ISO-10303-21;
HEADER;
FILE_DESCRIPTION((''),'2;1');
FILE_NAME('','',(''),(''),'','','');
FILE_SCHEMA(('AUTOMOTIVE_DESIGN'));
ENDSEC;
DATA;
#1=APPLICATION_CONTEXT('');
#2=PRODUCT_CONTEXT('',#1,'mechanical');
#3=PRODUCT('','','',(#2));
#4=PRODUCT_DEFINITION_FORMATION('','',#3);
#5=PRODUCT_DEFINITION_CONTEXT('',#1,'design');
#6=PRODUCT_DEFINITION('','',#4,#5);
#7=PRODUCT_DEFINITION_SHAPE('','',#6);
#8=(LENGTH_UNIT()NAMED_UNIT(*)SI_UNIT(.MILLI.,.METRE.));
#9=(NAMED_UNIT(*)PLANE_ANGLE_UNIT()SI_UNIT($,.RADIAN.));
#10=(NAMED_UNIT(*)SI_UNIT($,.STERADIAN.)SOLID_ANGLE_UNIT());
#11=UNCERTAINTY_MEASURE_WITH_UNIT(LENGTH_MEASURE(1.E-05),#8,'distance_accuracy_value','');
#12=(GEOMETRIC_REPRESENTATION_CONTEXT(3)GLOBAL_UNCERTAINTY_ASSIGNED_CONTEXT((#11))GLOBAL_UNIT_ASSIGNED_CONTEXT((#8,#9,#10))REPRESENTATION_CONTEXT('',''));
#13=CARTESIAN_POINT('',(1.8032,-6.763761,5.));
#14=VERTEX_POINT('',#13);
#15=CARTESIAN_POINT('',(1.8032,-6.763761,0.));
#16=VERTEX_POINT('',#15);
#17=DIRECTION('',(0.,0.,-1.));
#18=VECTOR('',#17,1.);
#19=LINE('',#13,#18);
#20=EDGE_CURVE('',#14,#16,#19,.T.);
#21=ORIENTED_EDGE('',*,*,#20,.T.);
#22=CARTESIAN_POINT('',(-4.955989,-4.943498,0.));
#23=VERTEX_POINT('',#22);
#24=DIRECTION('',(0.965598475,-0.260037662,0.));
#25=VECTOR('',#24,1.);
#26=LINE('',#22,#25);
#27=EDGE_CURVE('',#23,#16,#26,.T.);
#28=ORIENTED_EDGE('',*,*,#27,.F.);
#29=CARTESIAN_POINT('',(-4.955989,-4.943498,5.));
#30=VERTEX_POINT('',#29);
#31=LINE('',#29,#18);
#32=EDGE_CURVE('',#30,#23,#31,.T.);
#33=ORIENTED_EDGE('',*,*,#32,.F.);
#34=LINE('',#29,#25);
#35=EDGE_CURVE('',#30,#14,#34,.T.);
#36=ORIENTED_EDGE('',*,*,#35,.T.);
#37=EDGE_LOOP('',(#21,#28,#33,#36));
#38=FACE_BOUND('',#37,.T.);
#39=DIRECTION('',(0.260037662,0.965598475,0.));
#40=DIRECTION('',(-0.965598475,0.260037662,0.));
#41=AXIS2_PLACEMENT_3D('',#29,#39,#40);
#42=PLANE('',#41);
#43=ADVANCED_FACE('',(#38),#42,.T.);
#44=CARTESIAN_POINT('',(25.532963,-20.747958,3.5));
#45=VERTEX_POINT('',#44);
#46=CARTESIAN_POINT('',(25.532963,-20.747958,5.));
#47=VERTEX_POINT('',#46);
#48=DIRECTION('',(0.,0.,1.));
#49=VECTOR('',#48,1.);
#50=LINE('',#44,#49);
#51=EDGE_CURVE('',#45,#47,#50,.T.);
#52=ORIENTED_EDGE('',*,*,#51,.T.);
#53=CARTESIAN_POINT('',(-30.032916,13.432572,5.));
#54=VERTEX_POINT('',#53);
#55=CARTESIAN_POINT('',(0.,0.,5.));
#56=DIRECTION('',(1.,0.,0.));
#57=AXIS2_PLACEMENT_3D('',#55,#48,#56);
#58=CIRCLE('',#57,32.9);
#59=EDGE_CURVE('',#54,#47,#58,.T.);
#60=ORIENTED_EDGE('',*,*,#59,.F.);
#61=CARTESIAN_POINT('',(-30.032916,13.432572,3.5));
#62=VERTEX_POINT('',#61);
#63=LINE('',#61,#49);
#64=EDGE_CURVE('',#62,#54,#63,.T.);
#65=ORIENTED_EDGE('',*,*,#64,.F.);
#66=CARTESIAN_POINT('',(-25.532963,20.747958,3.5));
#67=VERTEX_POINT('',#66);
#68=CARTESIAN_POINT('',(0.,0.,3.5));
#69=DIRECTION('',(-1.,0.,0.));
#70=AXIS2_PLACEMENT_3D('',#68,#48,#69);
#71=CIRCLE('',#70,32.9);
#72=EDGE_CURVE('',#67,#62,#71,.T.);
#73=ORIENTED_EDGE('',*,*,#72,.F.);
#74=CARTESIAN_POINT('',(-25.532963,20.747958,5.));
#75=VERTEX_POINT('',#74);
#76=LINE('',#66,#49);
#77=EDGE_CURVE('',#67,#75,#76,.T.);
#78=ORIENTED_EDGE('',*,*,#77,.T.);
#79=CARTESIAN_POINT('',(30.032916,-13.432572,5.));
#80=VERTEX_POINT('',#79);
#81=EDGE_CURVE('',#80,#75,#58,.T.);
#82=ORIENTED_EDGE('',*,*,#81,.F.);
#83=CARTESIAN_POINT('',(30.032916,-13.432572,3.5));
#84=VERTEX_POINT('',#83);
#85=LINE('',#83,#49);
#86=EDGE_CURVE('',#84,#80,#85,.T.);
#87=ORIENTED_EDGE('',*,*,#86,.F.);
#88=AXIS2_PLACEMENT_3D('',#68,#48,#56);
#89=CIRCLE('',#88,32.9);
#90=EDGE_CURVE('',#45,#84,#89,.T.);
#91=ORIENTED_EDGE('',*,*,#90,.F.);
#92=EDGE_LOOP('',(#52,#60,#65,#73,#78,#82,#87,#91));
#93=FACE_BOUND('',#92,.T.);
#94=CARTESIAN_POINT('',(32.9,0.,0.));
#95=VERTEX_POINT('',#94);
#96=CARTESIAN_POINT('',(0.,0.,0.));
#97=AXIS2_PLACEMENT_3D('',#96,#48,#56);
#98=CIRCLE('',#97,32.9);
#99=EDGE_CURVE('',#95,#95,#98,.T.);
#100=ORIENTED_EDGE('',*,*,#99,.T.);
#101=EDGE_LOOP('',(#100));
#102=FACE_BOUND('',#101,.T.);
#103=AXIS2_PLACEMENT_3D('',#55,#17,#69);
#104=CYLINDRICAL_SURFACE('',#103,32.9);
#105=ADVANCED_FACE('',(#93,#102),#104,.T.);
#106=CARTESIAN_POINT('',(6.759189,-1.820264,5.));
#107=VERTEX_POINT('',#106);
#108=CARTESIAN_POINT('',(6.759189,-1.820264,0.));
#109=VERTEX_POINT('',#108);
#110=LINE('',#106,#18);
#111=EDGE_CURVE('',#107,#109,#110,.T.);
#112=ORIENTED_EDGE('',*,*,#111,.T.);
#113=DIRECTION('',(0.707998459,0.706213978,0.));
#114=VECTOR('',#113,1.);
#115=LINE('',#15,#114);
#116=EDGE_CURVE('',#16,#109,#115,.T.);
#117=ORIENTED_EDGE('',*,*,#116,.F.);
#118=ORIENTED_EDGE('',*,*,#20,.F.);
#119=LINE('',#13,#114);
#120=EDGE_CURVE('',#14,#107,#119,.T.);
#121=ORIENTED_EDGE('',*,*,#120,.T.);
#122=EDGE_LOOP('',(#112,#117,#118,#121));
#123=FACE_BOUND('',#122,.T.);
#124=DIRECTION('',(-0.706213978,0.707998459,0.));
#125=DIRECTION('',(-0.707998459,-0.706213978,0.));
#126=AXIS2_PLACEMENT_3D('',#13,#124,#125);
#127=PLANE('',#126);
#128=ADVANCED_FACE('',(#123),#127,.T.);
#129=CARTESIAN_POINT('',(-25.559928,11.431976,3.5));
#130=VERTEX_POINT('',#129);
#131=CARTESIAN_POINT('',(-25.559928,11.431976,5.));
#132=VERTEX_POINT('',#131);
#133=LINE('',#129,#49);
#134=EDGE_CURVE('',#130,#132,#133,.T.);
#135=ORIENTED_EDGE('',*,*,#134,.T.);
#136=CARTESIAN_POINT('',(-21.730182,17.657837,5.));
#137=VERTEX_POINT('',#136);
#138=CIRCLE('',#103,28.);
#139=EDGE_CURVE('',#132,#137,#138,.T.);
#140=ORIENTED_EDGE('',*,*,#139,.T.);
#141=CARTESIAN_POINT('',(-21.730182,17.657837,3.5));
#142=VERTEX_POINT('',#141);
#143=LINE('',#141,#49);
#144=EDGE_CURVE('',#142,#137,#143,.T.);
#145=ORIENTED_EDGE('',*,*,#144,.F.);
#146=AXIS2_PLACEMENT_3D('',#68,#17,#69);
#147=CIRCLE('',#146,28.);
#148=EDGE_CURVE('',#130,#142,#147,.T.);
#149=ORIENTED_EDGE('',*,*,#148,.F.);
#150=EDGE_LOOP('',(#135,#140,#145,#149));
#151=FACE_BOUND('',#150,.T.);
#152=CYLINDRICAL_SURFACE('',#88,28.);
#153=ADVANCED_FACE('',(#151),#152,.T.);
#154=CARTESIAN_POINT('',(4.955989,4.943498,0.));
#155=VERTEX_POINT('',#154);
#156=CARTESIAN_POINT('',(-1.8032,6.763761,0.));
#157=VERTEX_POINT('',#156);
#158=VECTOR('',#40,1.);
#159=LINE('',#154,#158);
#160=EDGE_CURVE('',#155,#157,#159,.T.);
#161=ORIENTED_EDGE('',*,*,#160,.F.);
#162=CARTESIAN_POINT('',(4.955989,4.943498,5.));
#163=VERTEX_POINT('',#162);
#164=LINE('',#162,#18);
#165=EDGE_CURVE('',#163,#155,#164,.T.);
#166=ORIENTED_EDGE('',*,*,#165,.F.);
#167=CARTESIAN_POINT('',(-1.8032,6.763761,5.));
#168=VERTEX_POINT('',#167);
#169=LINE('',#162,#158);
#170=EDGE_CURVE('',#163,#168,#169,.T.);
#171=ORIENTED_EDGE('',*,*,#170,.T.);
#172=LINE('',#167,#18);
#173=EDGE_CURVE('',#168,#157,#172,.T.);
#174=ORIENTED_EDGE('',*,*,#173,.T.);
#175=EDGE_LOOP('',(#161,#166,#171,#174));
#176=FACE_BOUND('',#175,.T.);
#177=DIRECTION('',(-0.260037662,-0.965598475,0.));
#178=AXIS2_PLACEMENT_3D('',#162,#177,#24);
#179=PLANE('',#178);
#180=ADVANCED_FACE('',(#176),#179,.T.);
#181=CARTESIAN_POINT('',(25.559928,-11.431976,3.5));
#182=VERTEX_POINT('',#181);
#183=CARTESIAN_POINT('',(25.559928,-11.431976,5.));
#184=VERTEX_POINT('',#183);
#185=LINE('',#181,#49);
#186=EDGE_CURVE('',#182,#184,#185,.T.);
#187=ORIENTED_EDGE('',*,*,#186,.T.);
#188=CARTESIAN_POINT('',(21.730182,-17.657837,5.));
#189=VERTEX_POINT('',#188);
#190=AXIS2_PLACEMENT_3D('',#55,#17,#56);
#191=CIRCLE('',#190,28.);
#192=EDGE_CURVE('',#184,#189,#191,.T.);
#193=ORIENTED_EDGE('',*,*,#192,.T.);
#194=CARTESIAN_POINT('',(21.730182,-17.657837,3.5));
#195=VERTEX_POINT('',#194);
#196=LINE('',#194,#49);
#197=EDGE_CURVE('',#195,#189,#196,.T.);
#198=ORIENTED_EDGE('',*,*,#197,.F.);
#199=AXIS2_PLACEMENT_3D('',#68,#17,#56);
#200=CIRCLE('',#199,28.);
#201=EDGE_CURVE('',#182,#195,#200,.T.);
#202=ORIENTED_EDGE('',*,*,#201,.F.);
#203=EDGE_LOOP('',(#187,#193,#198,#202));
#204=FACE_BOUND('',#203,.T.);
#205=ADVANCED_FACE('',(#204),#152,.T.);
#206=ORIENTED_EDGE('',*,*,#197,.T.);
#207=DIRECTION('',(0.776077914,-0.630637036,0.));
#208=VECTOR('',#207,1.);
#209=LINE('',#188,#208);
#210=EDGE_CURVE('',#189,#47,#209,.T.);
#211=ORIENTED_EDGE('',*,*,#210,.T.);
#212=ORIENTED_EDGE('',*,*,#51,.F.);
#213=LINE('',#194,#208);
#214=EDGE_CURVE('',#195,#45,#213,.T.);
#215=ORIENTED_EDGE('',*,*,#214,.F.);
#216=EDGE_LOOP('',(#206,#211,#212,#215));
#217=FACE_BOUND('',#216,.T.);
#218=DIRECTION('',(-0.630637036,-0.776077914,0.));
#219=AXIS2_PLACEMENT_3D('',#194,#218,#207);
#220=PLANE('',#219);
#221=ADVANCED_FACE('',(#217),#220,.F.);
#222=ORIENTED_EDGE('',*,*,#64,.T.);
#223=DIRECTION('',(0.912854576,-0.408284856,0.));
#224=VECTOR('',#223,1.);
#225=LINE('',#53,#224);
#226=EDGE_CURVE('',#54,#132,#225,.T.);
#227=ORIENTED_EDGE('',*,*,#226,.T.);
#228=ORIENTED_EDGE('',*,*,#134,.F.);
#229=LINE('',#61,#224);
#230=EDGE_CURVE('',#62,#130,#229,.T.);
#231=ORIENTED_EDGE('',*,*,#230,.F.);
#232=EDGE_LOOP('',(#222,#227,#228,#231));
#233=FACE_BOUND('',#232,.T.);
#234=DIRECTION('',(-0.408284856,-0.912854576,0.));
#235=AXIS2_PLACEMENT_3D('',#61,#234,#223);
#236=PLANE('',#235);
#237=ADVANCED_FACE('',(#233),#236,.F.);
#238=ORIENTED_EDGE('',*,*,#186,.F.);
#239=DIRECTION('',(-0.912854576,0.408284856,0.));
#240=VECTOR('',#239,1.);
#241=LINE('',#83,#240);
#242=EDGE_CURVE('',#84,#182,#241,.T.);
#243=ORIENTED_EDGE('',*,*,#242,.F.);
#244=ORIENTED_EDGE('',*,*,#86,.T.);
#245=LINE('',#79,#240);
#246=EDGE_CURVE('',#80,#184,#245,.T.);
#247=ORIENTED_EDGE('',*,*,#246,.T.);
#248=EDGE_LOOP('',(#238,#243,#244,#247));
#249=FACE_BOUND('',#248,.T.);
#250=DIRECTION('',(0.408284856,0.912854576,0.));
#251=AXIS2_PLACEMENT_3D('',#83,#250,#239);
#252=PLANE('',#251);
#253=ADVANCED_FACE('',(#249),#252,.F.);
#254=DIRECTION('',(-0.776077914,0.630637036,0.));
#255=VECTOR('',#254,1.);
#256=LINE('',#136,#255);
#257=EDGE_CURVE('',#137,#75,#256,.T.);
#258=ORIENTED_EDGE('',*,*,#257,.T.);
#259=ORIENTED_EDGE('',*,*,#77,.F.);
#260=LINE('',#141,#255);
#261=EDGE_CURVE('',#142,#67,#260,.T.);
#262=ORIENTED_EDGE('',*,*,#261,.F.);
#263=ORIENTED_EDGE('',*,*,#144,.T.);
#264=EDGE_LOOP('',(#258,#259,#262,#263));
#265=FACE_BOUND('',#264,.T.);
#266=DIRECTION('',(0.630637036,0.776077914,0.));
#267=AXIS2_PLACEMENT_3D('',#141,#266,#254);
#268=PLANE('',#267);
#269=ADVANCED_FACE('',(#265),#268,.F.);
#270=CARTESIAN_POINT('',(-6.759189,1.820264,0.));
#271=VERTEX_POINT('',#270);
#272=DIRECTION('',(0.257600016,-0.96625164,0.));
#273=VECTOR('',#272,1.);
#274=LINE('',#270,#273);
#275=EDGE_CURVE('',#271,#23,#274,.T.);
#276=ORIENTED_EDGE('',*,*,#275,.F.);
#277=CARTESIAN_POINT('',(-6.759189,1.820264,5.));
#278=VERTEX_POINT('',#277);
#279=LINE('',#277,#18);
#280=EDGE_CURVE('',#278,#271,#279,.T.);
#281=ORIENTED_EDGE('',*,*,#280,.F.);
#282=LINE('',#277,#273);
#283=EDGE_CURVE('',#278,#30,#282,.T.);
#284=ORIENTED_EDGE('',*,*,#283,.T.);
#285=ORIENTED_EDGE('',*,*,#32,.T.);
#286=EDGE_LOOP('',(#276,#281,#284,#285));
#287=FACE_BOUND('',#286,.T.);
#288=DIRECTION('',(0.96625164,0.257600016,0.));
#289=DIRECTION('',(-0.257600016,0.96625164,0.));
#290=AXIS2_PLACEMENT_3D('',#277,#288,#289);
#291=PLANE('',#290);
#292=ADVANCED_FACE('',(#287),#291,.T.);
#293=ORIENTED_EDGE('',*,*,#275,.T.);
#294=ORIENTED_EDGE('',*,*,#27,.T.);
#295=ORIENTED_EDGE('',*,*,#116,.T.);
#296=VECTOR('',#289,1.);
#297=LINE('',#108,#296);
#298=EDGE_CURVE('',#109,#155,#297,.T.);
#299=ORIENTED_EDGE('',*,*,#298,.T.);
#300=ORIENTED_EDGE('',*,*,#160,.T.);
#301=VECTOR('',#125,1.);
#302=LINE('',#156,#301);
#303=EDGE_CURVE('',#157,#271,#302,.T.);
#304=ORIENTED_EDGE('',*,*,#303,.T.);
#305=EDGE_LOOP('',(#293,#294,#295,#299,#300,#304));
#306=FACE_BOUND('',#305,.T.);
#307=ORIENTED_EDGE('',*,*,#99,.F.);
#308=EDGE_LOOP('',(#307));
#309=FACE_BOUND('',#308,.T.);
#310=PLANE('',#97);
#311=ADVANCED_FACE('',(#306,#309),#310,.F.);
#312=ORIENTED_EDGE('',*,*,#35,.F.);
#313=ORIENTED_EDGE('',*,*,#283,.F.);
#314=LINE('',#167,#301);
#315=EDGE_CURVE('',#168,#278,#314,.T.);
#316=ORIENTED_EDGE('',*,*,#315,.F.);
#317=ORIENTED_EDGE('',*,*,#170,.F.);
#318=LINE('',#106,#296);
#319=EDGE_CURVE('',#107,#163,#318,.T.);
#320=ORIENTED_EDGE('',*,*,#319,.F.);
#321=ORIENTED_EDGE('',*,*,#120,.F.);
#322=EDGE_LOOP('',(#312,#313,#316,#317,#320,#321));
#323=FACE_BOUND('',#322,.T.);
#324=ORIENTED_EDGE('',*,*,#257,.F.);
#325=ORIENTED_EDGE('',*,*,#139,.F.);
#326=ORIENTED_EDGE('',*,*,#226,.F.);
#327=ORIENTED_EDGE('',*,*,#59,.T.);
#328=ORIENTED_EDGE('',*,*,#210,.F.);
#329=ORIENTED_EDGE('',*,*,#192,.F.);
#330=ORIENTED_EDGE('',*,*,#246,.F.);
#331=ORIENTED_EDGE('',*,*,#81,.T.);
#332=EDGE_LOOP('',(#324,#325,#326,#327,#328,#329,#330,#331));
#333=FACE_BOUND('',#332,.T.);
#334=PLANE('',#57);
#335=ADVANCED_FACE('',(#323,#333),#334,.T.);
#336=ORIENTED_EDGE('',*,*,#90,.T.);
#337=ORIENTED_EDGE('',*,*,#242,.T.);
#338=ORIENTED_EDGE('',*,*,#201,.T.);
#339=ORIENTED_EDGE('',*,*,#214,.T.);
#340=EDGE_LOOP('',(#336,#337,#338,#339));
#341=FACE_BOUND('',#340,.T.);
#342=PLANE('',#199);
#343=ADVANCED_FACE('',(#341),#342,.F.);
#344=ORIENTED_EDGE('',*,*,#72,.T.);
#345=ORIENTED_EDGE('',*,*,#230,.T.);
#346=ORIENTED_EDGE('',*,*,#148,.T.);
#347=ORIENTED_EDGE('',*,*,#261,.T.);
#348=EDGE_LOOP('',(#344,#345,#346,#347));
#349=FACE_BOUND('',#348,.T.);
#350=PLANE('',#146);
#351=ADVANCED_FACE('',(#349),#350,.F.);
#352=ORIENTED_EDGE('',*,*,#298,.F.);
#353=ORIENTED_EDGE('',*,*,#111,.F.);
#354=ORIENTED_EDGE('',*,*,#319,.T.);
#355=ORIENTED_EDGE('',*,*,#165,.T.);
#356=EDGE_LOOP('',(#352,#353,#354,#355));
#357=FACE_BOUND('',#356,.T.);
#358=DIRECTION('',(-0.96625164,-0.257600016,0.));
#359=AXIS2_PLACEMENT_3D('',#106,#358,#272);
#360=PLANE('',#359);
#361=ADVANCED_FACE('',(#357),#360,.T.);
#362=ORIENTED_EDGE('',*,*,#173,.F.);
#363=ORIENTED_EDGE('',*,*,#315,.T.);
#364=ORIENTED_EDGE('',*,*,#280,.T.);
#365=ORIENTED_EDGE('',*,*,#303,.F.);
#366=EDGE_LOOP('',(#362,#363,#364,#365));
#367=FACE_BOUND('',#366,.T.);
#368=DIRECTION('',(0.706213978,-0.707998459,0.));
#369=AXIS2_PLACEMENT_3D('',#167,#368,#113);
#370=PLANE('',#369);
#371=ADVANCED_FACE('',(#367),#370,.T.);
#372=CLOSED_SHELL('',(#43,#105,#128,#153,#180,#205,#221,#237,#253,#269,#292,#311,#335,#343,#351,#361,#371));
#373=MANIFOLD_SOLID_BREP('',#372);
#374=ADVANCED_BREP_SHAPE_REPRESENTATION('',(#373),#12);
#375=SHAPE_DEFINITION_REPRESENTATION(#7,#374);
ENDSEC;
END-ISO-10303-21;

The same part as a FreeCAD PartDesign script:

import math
import FreeCAD as App
import Part
import Sketcher


def add_polygon(sketch, points):
    """Adds a closed chain of lines whose ends are joined by coincident constraints."""
    first, n = sketch.GeometryCount, len(points)
    for a, b in zip(points, points[1:] + points[:1]):
        sketch.addGeometry(Part.LineSegment(App.Vector(*a, 0), App.Vector(*b, 0)), False)
    for i in range(n):
        sketch.addConstraint(Sketcher.Constraint("Coincident", first + i, 2, first + (i + 1) % n, 1))

doc = App.newDocument("Part")
params = doc.addObject("Spreadsheet::Sheet", "Params")
for row, (alias, value) in enumerate([
    ("sketch1_diameter", "65.8 mm"),
    ("sketch1_length", "7 mm"),
    ("pad1_length", "5 mm"),
    ("sketch2_radius", "28 mm"),
    ("sketch2_radius2", "32.9 mm"),
    ("pocket1_length", "1.5 mm"),
], start=1):
    params.set(f"A{row}", alias)
    params.set(f"B{row}", "=" + value)
    params.setAlias(f"B{row}", alias)

body = doc.addObject("PartDesign::Body", "Body")

# Sketch on XY plane
sketch1 = body.newObject("Sketcher::SketchObject", "Sketch")
sketch1.AttachmentSupport = (doc.getObject("XY_Plane"), [""])
sketch1.MapMode = "FlatFace"
sketch1.addGeometry(Part.Circle(App.Vector(0, 0, 0), App.Vector(0, 0, 1), 33), False)  # 0
add_polygon(sketch1, [(5, 5), (7, -2), (2, -7), (-5, -5), (-7, 2), (-2, 7)])  # lines 1-6
sketch1.addConstraint([
    Sketcher.Constraint("Coincident", 0, 3, -1, 1),
    Sketcher.Constraint("Symmetric", 1, 2, 4, 2, -1, 1),
    Sketcher.Constraint("Symmetric", 2, 2, 5, 2, -1, 1),
    Sketcher.Constraint("Symmetric", 3, 2, 6, 2, -1, 1),
    Sketcher.Constraint("Equal", 1, 2),
    Sketcher.Constraint("Equal", 2, 3),
    Sketcher.Constraint("Diameter", 0, 65.8),
    Sketcher.Constraint("Distance", 1, 7.0),
    Sketcher.Constraint("DistanceX", -1, 1, 2, 2, 1.8032),
    Sketcher.Constraint("DistanceX", 4, 2, 3, 2, 1.8032),
    Sketcher.Constraint("DistanceX", -1, 1, 1, 2, 6.759189),
])
sketch1.setExpression("Constraints[12]", "Params.sketch1_diameter")
sketch1.setExpression("Constraints[13]", "Params.sketch1_length")
pad1 = body.newObject("PartDesign::Pad", "Pad")
pad1.Profile = sketch1
pad1.setExpression("Length", "Params.pad1_length")

# Sketch on XY plane
sketch2 = body.newObject("Sketcher::SketchObject", "Sketch001")
sketch2.AttachmentSupport = (doc.getObject("XY_Plane"), [""])
sketch2.MapMode = "FlatFace"
sketch2.AttachmentOffset = App.Placement(App.Vector(0, 0, 3.5), App.Rotation())
sketch2.addGeometry([
    Part.LineSegment(App.Vector(-30, 13.4, 0), App.Vector(-25.6, 11.4, 0)),
    Part.ArcOfCircle(Part.Circle(App.Vector(0, 0, 0), App.Vector(0, 0, 1), 28), math.radians(140.9), math.radians(155.9)),
    Part.LineSegment(App.Vector(-21.7, 17.7, 0), App.Vector(-25.5, 20.7, 0)),
    Part.ArcOfCircle(Part.Circle(App.Vector(0, 0, 0), App.Vector(0, 0, 1), 32.9), math.radians(140.9), math.radians(155.9)),
], False)
sketch2.addConstraint([
    Sketcher.Constraint("Coincident", 0, 2, 1, 2),
    Sketcher.Constraint("Coincident", 1, 1, 2, 1),
    Sketcher.Constraint("Coincident", 2, 2, 3, 1),
    Sketcher.Constraint("Coincident", 3, 2, 0, 1),
    Sketcher.Constraint("Coincident", 1, 3, -1, 1),
    Sketcher.Constraint("Coincident", 3, 3, -1, 1),
    Sketcher.Constraint("Radius", 1, 28.0),
    Sketcher.Constraint("Radius", 3, 32.9),
    Sketcher.Constraint("DistanceX", 0, 2, -1, 1, 25.559928),
    Sketcher.Constraint("DistanceX", 1, 1, -1, 1, 21.730182),
    Sketcher.Constraint("DistanceY", -1, 1, 2, 2, 20.747958),
    Sketcher.Constraint("DistanceY", -1, 1, 3, 2, 13.432572),
])
sketch2.setExpression("Constraints[6]", "Params.sketch2_radius")
sketch2.setExpression("Constraints[7]", "Params.sketch2_radius2")
pocket1 = body.newObject("PartDesign::Pocket", "Pocket")
pocket1.Profile = sketch2
pocket1.setExpression("Length", "Params.pocket1_length")
pocket1.Reversed = True
doc.recompute()

polarpattern = body.newObject("PartDesign::PolarPattern", "PolarPattern")
polarpattern.Originals = [pocket1]
polarpattern.Axis = (doc.getObject("Z_Axis"), [""])
polarpattern.Angle = 360
polarpattern.Occurrences = 2
body.Tip = polarpattern

doc.recompute()
